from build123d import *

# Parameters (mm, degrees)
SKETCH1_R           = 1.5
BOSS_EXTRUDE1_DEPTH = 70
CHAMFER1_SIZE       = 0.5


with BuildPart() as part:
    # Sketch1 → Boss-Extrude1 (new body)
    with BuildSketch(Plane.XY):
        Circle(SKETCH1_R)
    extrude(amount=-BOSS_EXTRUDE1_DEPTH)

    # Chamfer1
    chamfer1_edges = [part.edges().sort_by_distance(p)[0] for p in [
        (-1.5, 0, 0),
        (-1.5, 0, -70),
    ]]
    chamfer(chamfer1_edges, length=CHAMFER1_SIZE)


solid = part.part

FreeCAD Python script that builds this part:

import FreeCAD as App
import Part
import Sketcher
from FreeCAD import Vector


def edges_at(feature, points):
    """Names of the edges that pass closest to the given points."""
    edges = feature.Shape.Edges
    near = lambda p: min(range(len(edges)), key=lambda i: edges[i].distToShape(Part.Vertex(*p))[0])
    return sorted({f"Edge{near(p) + 1}" for p in points})

doc = App.newDocument("Part")
body = doc.addObject("PartDesign::Body", "Body")

# Sketch on XY plane
sketch1 = body.newObject("Sketcher::SketchObject", "Sketch")
sketch1.AttachmentSupport = (doc.getObject("XY_Plane"), [""])
sketch1.MapMode = "FlatFace"
sketch1.addGeometry(Part.Circle(Vector(0, 0, 0), Vector(0, 0, 1), 1.5), False)
sketch1.addConstraint([
    Sketcher.Constraint("Coincident", 0, 3, -1, 1),
    Sketcher.Constraint("Diameter", 0, 3.0),
])
pad1 = body.newObject("PartDesign::Pad", "Pad")
pad1.Profile = sketch1
pad1.Length = 70
pad1.Reversed = True
doc.recompute()

chamfer = body.newObject("PartDesign::Chamfer", "Chamfer")
chamfer.Base = (pad1, edges_at(pad1, [(-1.5, 0, 0), (-1.5, 0, -70)]))
chamfer.Size = 0.5

doc.recompute()
